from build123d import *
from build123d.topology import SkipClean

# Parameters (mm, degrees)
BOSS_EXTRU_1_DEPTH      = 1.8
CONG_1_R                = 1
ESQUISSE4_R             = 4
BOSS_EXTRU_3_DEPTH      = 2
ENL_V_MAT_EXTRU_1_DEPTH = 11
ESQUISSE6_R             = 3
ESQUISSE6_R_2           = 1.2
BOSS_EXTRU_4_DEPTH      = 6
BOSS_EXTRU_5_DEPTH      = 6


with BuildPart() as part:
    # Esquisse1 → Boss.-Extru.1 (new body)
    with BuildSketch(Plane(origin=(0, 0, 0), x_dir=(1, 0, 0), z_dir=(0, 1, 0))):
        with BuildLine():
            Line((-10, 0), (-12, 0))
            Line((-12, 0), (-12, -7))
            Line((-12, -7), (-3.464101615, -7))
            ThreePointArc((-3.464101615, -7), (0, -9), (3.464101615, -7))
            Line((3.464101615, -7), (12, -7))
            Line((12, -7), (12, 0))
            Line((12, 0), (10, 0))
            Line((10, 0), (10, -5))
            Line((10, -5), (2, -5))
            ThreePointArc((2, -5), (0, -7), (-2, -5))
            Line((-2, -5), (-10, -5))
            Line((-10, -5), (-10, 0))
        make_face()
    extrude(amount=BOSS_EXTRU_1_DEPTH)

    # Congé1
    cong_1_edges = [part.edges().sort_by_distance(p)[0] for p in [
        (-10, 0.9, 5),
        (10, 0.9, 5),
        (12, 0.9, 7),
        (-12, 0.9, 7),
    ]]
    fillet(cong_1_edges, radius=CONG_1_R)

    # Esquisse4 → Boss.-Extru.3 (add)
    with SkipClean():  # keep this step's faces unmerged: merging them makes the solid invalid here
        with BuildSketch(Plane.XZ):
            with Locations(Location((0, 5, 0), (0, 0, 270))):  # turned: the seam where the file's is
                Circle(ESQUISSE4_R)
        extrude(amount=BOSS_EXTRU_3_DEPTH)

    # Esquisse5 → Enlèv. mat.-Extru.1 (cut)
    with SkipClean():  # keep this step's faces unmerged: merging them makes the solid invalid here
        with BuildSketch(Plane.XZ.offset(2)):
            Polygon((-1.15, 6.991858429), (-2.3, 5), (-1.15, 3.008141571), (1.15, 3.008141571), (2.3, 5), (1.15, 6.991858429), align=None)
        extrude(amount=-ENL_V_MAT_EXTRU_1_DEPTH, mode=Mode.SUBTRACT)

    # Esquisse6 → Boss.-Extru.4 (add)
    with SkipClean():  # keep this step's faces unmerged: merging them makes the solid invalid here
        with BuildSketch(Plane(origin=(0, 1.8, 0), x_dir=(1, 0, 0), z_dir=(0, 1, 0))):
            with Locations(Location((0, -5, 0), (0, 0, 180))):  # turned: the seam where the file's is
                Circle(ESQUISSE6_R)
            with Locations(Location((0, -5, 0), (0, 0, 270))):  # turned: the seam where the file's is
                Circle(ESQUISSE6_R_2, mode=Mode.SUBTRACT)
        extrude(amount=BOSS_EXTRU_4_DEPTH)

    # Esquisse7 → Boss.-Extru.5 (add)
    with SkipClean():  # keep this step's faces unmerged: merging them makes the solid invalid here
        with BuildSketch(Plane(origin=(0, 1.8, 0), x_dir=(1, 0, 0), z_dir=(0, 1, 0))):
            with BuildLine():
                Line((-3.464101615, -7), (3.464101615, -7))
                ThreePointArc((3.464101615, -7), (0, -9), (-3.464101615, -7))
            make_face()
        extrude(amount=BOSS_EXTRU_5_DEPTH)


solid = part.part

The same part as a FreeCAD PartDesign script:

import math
import FreeCAD as App
import Part
import Sketcher

V = App.Vector
Q = App.Units.Quantity


def edges_at(feature, points):
    """Names of the edges that pass closest to the given points."""
    edges = feature.Shape.Edges
    near = lambda p: min(range(len(edges)), key=lambda i: edges[i].distToShape(Part.Vertex(*p))[0])
    return sorted({f"Edge{near(p) + 1}" for p in points})


def add_polygon(sketch, points):
    """Adds a closed chain of lines whose ends are joined by coincident constraints."""
    first, n = sketch.GeometryCount, len(points)
    for a, b in zip(points, points[1:] + points[:1]):
        sketch.addGeometry(Part.LineSegment(App.Vector(*a, 0), App.Vector(*b, 0)), False)
    for i in range(n):
        sketch.addConstraint(Sketcher.Constraint("Coincident", first + i, 2, first + (i + 1) % n, 1))

doc = App.newDocument("Part")
params = doc.addObject("Spreadsheet::Sheet", "Params")
for row, (alias, value) in enumerate([
    ("sketch1_radius", "4 mm"),
    ("sketch1_radius2", "2 mm"),
    ("sketch1_width", "2 mm"),
    ("sketch1_width2", "8 mm"),
    ("sketch1_height", "7 mm"),
    ("pad1_length", "1.8 mm"),
    ("fillet_radius", "1 mm"),
    ("sketch2_diameter", "8 mm"),
    ("pad2_length", "2 mm"),
    ("sketch3_width", "2.3 mm"),
    ("sketch3_length", "2.3 mm"),
    ("pocket1_length", "11 mm"),
    ("sketch4_diameter", "6 mm"),
    ("sketch4_diameter2", "2.4 mm"),
    ("pad3_length", "6 mm"),
    ("sketch5_radius", "4 mm"),
    ("pad4_length", "6 mm"),
], start=1):
    params.set(f"A{row}", alias)
    params.set(f"B{row}", "=" + value)
    params.setAlias(f"B{row}", alias)

body = doc.addObject("PartDesign::Body", "Body")

sketch1 = body.newObject("Sketcher::SketchObject", "Sketch")
sketch1.AttachmentSupport = (doc.getObject("XZ_Plane"), [""])
sketch1.MapMode = "FlatFace"
sketch1.addGeometry(Part.LineSegment(V(-10, 0, 0), V(-12, 0, 0)), False)
sketch1.addGeometry(Part.LineSegment(V(-12, 0, 0), V(-12, 7, 0)), False)
sketch1.addGeometry(Part.LineSegment(V(-12, 7, 0), V(-3.5, 7, 0)), False)
sketch1.addGeometry(Part.ArcOfCircle(Part.Circle(V(0, 5, 0), V(0, 0, 1), 4), math.radians(30), math.radians(150)), False)
sketch1.addGeometry(Part.LineSegment(V(3.5, 7, 0), V(12, 7, 0)), False)
sketch1.addGeometry(Part.LineSegment(V(12, 7, 0), V(12, 0, 0)), False)
sketch1.addGeometry(Part.LineSegment(V(12, 0, 0), V(10, 0, 0)), False)
sketch1.addGeometry(Part.LineSegment(V(10, 0, 0), V(10, 5, 0)), False)
sketch1.addGeometry(Part.LineSegment(V(10, 5, 0), V(2, 5, 0)), False)
sketch1.addGeometry(Part.ArcOfCircle(Part.Circle(V(0, 5, 0), V(0, 0, 1), 2), math.radians(0), math.radians(180)), False)
sketch1.addGeometry(Part.LineSegment(V(-2, 5, 0), V(-10, 5, 0)), False)
sketch1.addGeometry(Part.LineSegment(V(-10, 5, 0), V(-10, 0, 0)), False)
sketch1.addConstraint(Sketcher.Constraint("Coincident", 0, 2, 1, 1))
sketch1.addConstraint(Sketcher.Constraint("Coincident", 1, 2, 2, 1))
sketch1.addConstraint(Sketcher.Constraint("Coincident", 2, 2, 3, 2))
sketch1.addConstraint(Sketcher.Constraint("Coincident", 3, 1, 4, 1))
sketch1.addConstraint(Sketcher.Constraint("Coincident", 4, 2, 5, 1))
sketch1.addConstraint(Sketcher.Constraint("Coincident", 5, 2, 6, 1))
sketch1.addConstraint(Sketcher.Constraint("Coincident", 6, 2, 7, 1))
sketch1.addConstraint(Sketcher.Constraint("Coincident", 7, 2, 8, 1))
sketch1.addConstraint(Sketcher.Constraint("Coincident", 8, 2, 9, 1))
sketch1.addConstraint(Sketcher.Constraint("Coincident", 9, 2, 10, 1))
sketch1.addConstraint(Sketcher.Constraint("Coincident", 10, 2, 11, 1))
sketch1.addConstraint(Sketcher.Constraint("Coincident", 11, 2, 0, 1))
sketch1.addConstraint(Sketcher.Constraint("Horizontal", 0))
sketch1.addConstraint(Sketcher.Constraint("Vertical", 1))
sketch1.addConstraint(Sketcher.Constraint("Horizontal", 2))
sketch1.addConstraint(Sketcher.Constraint("Horizontal", 4))
sketch1.addConstraint(Sketcher.Constraint("Vertical", 5))
sketch1.addConstraint(Sketcher.Constraint("Horizontal", 6))
sketch1.addConstraint(Sketcher.Constraint("Vertical", 7))
sketch1.addConstraint(Sketcher.Constraint("Horizontal", 8))
sketch1.addConstraint(Sketcher.Constraint("Horizontal", 10))
sketch1.addConstraint(Sketcher.Constraint("Vertical", 11))
sketch1.addConstraint(Sketcher.Constraint("Coincident", 9, 3, 3, 3))
sketch1.addConstraint(Sketcher.Constraint("Symmetric", 0, 2, 5, 2, -1, 1))
sketch1.addConstraint(Sketcher.Constraint("Symmetric", 2, 2, 3, 1, -2))
sketch1.addConstraint(Sketcher.Constraint("Symmetric", 7, 2, 10, 2, -2))
sketch1.addConstraint(Sketcher.Constraint("PointOnObject", 0, 2, -1))
sketch1.addConstraint(Sketcher.Constraint("Horizontal", 9, 3, 7, 2))
sketch1.addConstraint(Sketcher.Constraint("Radius", 3, Q("4 mm")))
sketch1.addConstraint(Sketcher.Constraint("Radius", 9, Q("2 mm")))
sketch1.addConstraint(Sketcher.Constraint("DistanceX", 0, 2, 0, 1, Q("2 mm")))
sketch1.addConstraint(Sketcher.Constraint("DistanceX", 8, 2, 8, 1, Q("8 mm")))
sketch1.addConstraint(Sketcher.Constraint("DistanceY", 1, 1, 1, 2, Q("7 mm")))
sketch1.addConstraint(Sketcher.Constraint("DistanceY", 7, 1, 7, 2, Q("5 mm")))
sketch1.setExpression("Constraints[28]", "Params.sketch1_radius")
sketch1.setExpression("Constraints[29]", "Params.sketch1_radius2")
sketch1.setExpression("Constraints[30]", "Params.sketch1_width")
sketch1.setExpression("Constraints[31]", "Params.sketch1_width2")
sketch1.setExpression("Constraints[32]", "Params.sketch1_height")
pad1 = body.newObject("PartDesign::Pad", "Pad")
pad1.Profile = sketch1
pad1.setExpression("Length", "Params.pad1_length")
pad1.Reversed = True
doc.recompute()

fillet = body.newObject("PartDesign::Fillet", "Fillet")
fillet.Base = (pad1, edges_at(pad1, [
    (-10, 0.9, 5),
    (10, 0.9, 5),
    (12, 0.9, 7),
    (-12, 0.9, 7),
]))
fillet.setExpression("Radius", "Params.fillet_radius")

sketch2 = body.newObject("Sketcher::SketchObject", "Sketch001")
sketch2.AttachmentSupport = (doc.getObject("XZ_Plane"), [""])
sketch2.MapMode = "FlatFace"
sketch2.addGeometry(Part.Circle(V(0, 5, 0), V(0, 0, 1), 4), False)
sketch2.addConstraint(Sketcher.Constraint("PointOnObject", 0, 3, -2))
sketch2.addConstraint(Sketcher.Constraint("Diameter", 0, Q("8 mm")))
sketch2.addConstraint(Sketcher.Constraint("DistanceY", -1, 1, 0, 3, Q("5 mm")))
sketch2.setExpression("Constraints[1]", "Params.sketch2_diameter")
pad2 = body.newObject("PartDesign::Pad", "Pad001")
pad2.Profile = sketch2
pad2.setExpression("Length", "Params.pad2_length")

sketch3 = body.newObject("Sketcher::SketchObject", "Sketch002")
sketch3.AttachmentSupport = (doc.getObject("XZ_Plane"), [""])
sketch3.MapMode = "FlatFace"
sketch3.AttachmentOffset = App.Placement(V(0, 0, 2), App.Rotation())
add_polygon(sketch3, [(-1.1, 7), (-2.3, 5), (-1.1, 3), (1.1, 3), (2.3, 5), (1.1, 7)])
sketch3.addConstraint(Sketcher.Constraint("Horizontal", 2))
sketch3.addConstraint(Sketcher.Constraint("Horizontal", 5))
sketch3.addConstraint(Sketcher.Constraint("Symmetric", 0, 2, 3, 2, -2))
sketch3.addConstraint(Sketcher.Constraint("Parallel", 0, 3))
sketch3.addConstraint(Sketcher.Constraint("Parallel", 1, 4))
sketch3.addConstraint(Sketcher.Constraint("Vertical", 2, 2, 4, 2))
sketch3.addConstraint(Sketcher.Constraint("Vertical", 1, 2, 5, 2))
sketch3.addConstraint(Sketcher.Constraint("Angle", 0, Q("-120 deg")))
sketch3.addConstraint(Sketcher.Constraint("DistanceX", 2, 1, 2, 2, Q("2.3 mm")))
sketch3.addConstraint(Sketcher.Constraint("DistanceY", -1, 1, 0, 2, Q("5 mm")))
sketch3.addConstraint(Sketcher.Constraint("Distance", 0, Q("2.3 mm")))
sketch3.setExpression("Constraints[14]", "Params.sketch3_width")
sketch3.setExpression("Constraints[16]", "Params.sketch3_length")
pocket1 = body.newObject("PartDesign::Pocket", "Pocket")
pocket1.Profile = sketch3
pocket1.setExpression("Length", "Params.pocket1_length")

sketch4 = body.newObject("Sketcher::SketchObject", "Sketch003")
sketch4.AttachmentSupport = (doc.getObject("XZ_Plane"), [""])
sketch4.MapMode = "FlatFace"
sketch4.AttachmentOffset = App.Placement(V(0, 0, -1.8), App.Rotation())
sketch4.addGeometry(Part.Circle(V(0, 5, 0), V(0, 0, 1), 3), False)
sketch4.addGeometry(Part.Circle(V(0, 5, 0), V(0, 0, 1), 1.2), False)
sketch4.addConstraint(Sketcher.Constraint("Coincident", 1, 3, 0, 3))
sketch4.addConstraint(Sketcher.Constraint("PointOnObject", 0, 3, -2))
sketch4.addConstraint(Sketcher.Constraint("Diameter", 0, Q("6 mm")))
sketch4.addConstraint(Sketcher.Constraint("Diameter", 1, Q("2.4 mm")))
sketch4.addConstraint(Sketcher.Constraint("DistanceY", -1, 1, 0, 3, Q("5 mm")))
sketch4.setExpression("Constraints[2]", "Params.sketch4_diameter")
sketch4.setExpression("Constraints[3]", "Params.sketch4_diameter2")
pad3 = body.newObject("PartDesign::Pad", "Pad002")
pad3.Profile = sketch4
pad3.setExpression("Length", "Params.pad3_length")
pad3.Reversed = True

sketch5 = body.newObject("Sketcher::SketchObject", "Sketch004")
sketch5.AttachmentSupport = (doc.getObject("XZ_Plane"), [""])
sketch5.MapMode = "FlatFace"
sketch5.AttachmentOffset = App.Placement(V(0, 0, -1.8), App.Rotation())
sketch5.addGeometry(Part.LineSegment(V(3.5, 7, 0), V(-3.5, 7, 0)), False)
sketch5.addGeometry(Part.ArcOfCircle(Part.Circle(V(0, 5, 0), V(0, 0, 1), 4), math.radians(30), math.radians(150)), False)
sketch5.addConstraint(Sketcher.Constraint("Coincident", 0, 1, 1, 1))
sketch5.addConstraint(Sketcher.Constraint("Coincident", 1, 2, 0, 2))
sketch5.addConstraint(Sketcher.Constraint("Horizontal", 0))
sketch5.addConstraint(Sketcher.Constraint("PointOnObject", 1, 3, -2))
sketch5.addConstraint(Sketcher.Constraint("Radius", 1, Q("4 mm")))
sketch5.addConstraint(Sketcher.Constraint("DistanceY", -1, 1, 1, 3, Q("5 mm")))
sketch5.addConstraint(Sketcher.Constraint("DistanceY", -1, 1, 0, 1, Q("7 mm")))
sketch5.setExpression("Constraints[4]", "Params.sketch5_radius")
pad4 = body.newObject("PartDesign::Pad", "Pad003")
pad4.Profile = sketch5
pad4.setExpression("Length", "Params.pad4_length")
pad4.Reversed = True

doc.recompute()
